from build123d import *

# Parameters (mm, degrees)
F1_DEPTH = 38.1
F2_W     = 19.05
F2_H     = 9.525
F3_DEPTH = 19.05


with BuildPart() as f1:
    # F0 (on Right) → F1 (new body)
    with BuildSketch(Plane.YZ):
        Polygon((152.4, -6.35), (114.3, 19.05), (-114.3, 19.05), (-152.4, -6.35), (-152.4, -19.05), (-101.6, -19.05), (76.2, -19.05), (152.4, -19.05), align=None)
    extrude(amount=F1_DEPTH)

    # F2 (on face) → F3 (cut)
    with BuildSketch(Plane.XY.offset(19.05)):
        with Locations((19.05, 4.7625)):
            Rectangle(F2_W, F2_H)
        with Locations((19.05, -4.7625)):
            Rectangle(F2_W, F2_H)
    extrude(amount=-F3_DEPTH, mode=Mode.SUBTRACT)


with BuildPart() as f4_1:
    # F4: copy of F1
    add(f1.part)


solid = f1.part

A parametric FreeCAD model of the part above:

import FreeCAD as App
import Part
import Sketcher

V = App.Vector
Q = App.Units.Quantity


def add_polygon(sketch, points):
    """Adds a closed chain of lines whose ends are joined by coincident constraints."""
    first, n = sketch.GeometryCount, len(points)
    for a, b in zip(points, points[1:] + points[:1]):
        sketch.addGeometry(Part.LineSegment(App.Vector(*a, 0), App.Vector(*b, 0)), False)
    for i in range(n):
        sketch.addConstraint(Sketcher.Constraint("Coincident", first + i, 2, first + (i + 1) % n, 1))

doc = App.newDocument("Part")
body = doc.addObject("PartDesign::Body", "Body")

sketch1 = body.newObject("Sketcher::SketchObject", "Sketch")
sketch1.AttachmentSupport = (doc.getObject("YZ_Plane"), [""])
sketch1.MapMode = "FlatFace"
add_polygon(sketch1, [(152.4, -6.35), (114.3, 19.05), (-114.3, 19.05), (-152.4, -6.35), (-152.4, -19.05), (152.4, -19.05)])
sketch1.addConstraint(Sketcher.Constraint("Horizontal", 1))
sketch1.addConstraint(Sketcher.Constraint("Vertical", 3))
sketch1.addConstraint(Sketcher.Constraint("Horizontal", 4))
sketch1.addConstraint(Sketcher.Constraint("Vertical", 5))
sketch1.addConstraint(Sketcher.Constraint("Symmetric", 2, 2, 5, 2, -2))
sketch1.addConstraint(Sketcher.Constraint("Equal", 0, 2))
sketch1.addConstraint(Sketcher.Constraint("DistanceX", 1, 2, 1, 1, Q("9 in")))
sketch1.addConstraint(Sketcher.Constraint("DistanceX", 4, 1, 4, 2, Q("12 in")))
sketch1.addConstraint(Sketcher.Constraint("DistanceY", 3, 2, 3, 1, Q("0.5 in")))
sketch1.addConstraint(Sketcher.Constraint("DistanceY", 2, 2, 1, 2, Q("1 in")))
sketch1.addConstraint(Sketcher.Constraint("DistanceY", -1, 1, 0, 2, Q("0.75 in")))
pad1 = body.newObject("PartDesign::Pad", "Pad")
pad1.Profile = sketch1
pad1.Length = Q("1.5 in")

sketch2 = body.newObject("Sketcher::SketchObject", "Sketch001")
sketch2.AttachmentSupport = (doc.getObject("XY_Plane"), [""])
sketch2.MapMode = "FlatFace"
sketch2.AttachmentOffset = App.Placement(V(0, 0, 0.75 * 25.4), App.Rotation())
add_polygon(sketch2, [(9.525, 9.525), (9.525, -9.525), (28.575, -9.525), (28.575, 9.525)])
sketch2.addConstraint(Sketcher.Constraint("Vertical", 0))
sketch2.addConstraint(Sketcher.Constraint("Horizontal", 1))
sketch2.addConstraint(Sketcher.Constraint("Vertical", 2))
sketch2.addConstraint(Sketcher.Constraint("Horizontal", 3))
sketch2.addConstraint(Sketcher.Constraint("Equal", 3, 0))
sketch2.addConstraint(Sketcher.Constraint("DistanceX", 1, 1, 1, 2, Q("0.75 in")))
sketch2.addConstraint(Sketcher.Constraint("DistanceX", -1, 1, 0, 2, Q("0.375 in")))
sketch2.addConstraint(Sketcher.Constraint("DistanceY", 0, 2, -1, 1, Q("0.375 in")))
pocket1 = body.newObject("PartDesign::Pocket", "Pocket")
pocket1.Profile = sketch2
pocket1.Length = Q("0.75 in")
body2 = doc.addObject("PartDesign::Body", "Body001")
doc.recompute()

body2.BaseFeature = body
doc.recompute()
body.Visibility = False

doc.recompute()
